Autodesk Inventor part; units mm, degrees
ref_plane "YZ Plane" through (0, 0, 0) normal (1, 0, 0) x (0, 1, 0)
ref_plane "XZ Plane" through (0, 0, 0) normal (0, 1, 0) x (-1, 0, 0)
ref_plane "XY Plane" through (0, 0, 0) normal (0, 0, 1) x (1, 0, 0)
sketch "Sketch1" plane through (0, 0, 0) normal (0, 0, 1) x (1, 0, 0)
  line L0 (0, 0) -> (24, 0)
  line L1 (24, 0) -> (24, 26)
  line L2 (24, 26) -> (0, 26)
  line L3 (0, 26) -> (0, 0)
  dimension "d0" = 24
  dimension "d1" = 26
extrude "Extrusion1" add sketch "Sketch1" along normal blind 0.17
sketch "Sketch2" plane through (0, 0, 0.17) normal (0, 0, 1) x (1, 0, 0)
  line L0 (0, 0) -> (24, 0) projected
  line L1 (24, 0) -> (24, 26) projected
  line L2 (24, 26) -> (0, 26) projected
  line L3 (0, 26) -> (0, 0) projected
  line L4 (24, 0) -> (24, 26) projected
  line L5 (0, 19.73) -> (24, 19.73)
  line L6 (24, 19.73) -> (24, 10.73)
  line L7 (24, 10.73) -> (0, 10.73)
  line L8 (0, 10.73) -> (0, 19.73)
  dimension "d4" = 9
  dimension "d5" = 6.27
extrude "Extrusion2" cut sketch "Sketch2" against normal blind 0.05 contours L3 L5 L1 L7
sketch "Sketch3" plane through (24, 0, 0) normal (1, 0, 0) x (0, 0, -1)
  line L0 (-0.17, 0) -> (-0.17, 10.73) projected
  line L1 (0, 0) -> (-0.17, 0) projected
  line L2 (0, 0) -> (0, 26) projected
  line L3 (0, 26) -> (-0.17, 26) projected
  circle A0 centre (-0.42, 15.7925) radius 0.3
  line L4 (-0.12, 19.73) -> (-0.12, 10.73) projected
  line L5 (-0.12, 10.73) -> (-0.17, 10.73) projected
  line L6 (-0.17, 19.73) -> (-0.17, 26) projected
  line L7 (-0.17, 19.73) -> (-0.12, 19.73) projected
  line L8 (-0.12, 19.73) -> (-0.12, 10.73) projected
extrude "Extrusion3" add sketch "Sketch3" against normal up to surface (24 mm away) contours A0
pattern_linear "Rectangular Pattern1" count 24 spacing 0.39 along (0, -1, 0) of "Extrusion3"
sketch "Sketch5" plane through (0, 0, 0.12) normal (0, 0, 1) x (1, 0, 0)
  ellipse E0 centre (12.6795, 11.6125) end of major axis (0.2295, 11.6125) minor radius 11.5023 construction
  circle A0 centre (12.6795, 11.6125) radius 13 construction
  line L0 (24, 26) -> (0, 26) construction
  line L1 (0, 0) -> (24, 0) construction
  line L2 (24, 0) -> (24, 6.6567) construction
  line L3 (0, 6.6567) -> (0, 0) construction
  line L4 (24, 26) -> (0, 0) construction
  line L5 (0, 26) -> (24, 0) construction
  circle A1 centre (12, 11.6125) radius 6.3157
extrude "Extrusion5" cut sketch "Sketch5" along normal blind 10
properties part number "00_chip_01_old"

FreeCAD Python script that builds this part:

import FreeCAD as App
import Part
import Sketcher

V = App.Vector
Q = App.Units.Quantity

doc = App.newDocument("Part")
body = doc.addObject("PartDesign::Body", "Body")
body.AllowCompound = True

# Sketch on XY plane
sketch1 = body.newObject("Sketcher::SketchObject", "Sketch")
sketch1.AttachmentSupport = (doc.getObject("XY_Plane"), [""])
sketch1.MapMode = "FlatFace"
sketch1.addGeometry([
    Part.LineSegment(V(0, 26, 0), V(0, 0, 0)),
    Part.LineSegment(V(0, 0, 0), V(24, 0, 0)),
    Part.LineSegment(V(24, 0, 0), V(24, 26, 0)),
    Part.LineSegment(V(24, 26, 0), V(0, 26, 0)),
], False)
sketch1.addConstraint([
    Sketcher.Constraint("Coincident", 0, 2, 1, 1),
    Sketcher.Constraint("Coincident", 1, 2, 2, 1),
    Sketcher.Constraint("Coincident", 2, 2, 3, 1),
    Sketcher.Constraint("Coincident", 3, 2, 0, 1),
    Sketcher.Constraint("Vertical", 0),
    Sketcher.Constraint("Horizontal", 1),
    Sketcher.Constraint("Vertical", 2),
    Sketcher.Constraint("Horizontal", 3),
    Sketcher.Constraint("Coincident", 0, 2, -1, 1),
    Sketcher.Constraint("DistanceX", 1, 1, 1, 2, Q("24 mm")),
    Sketcher.Constraint("DistanceY", 0, 2, 0, 1, Q("26 mm")),
])
pad1 = body.newObject("PartDesign::Pad", "Pad")
pad1.Profile = sketch1
pad1.Length = 0.17

# Sketch on XY plane
sketch2 = body.newObject("Sketcher::SketchObject", "Sketch001")
sketch2.AttachmentSupport = (doc.getObject("XY_Plane"), [""])
sketch2.MapMode = "FlatFace"
sketch2.AttachmentOffset = App.Placement(V(0, 0, 0.17), App.Rotation())
sketch2.addGeometry([
    Part.LineSegment(V(0, 20, 0), V(0, 11, 0)),
    Part.LineSegment(V(0, 11, 0), V(24, 11, 0)),
    Part.LineSegment(V(24, 11, 0), V(24, 20, 0)),
    Part.LineSegment(V(24, 20, 0), V(0, 20, 0)),
], False)
sketch2.addConstraint([
    Sketcher.Constraint("Coincident", 0, 2, 1, 1),
    Sketcher.Constraint("Coincident", 1, 2, 2, 1),
    Sketcher.Constraint("Coincident", 2, 2, 3, 1),
    Sketcher.Constraint("Coincident", 3, 2, 0, 1),
    Sketcher.Constraint("Vertical", 0),
    Sketcher.Constraint("Horizontal", 1),
    Sketcher.Constraint("Vertical", 2),
    Sketcher.Constraint("Horizontal", 3),
    Sketcher.Constraint("PointOnObject", 0, 2, -2),
    Sketcher.Constraint("DistanceY", 0, 2, 0, 1, Q("9 mm")),
    Sketcher.Constraint("DistanceX", 1, 1, 1, 2, Q("24 mm")),
    Sketcher.Constraint("DistanceY", -1, 1, 0, 2, Q("10.73 mm")),
])
pocket1 = body.newObject("PartDesign::Pocket", "Pocket")
pocket1.Profile = sketch2
pocket1.Length = 0.05

# Sketch on YZ plane
sketch3 = body.newObject("Sketcher::SketchObject", "Sketch002")
sketch3.AttachmentSupport = (doc.getObject("YZ_Plane"), [""])
sketch3.MapMode = "FlatFace"
sketch3.AttachmentOffset = App.Placement(V(0, 0, 24), App.Rotation())
sketch3.addGeometry(Part.Circle(V(15.79, 0.42, 0), V(0, 0, 1), 0.3), False)
sketch3.addConstraint([
    Sketcher.Constraint("Diameter", 0, Q("0.6 mm")),
    Sketcher.Constraint("DistanceY", -1, 1, 0, 3, Q("0.42 mm")),
    Sketcher.Constraint("DistanceX", -1, 1, 0, 3, Q("15.7925 mm")),
])
pad2 = body.newObject("PartDesign::Pad", "Pad001")
pad2.Profile = sketch3
pad2.Length = 24
pad2.Reversed = True
doc.recompute()

linearpattern = body.newObject("PartDesign::LinearPattern", "LinearPattern")
linearpattern.Originals = [pad2]
linearpattern.Direction = (doc.getObject("Y_Axis"), [""])
linearpattern.Mode = "offset"
linearpattern.Offset = 0.39
linearpattern.Occurrences = 24
linearpattern.Reversed = True
body.Tip = linearpattern

# Sketch on XY plane
sketch4 = body.newObject("Sketcher::SketchObject", "Sketch003")
sketch4.AttachmentSupport = (doc.getObject("XY_Plane"), [""])
sketch4.MapMode = "FlatFace"
sketch4.AttachmentOffset = App.Placement(V(0, 0, 0.12), App.Rotation())
sketch4.addGeometry(Part.Circle(V(12, 12, 0), V(0, 0, 1), 6), False)
sketch4.addConstraint([
    Sketcher.Constraint("DistanceX", -1, 1, 0, 3, Q("12 mm")),
    Sketcher.Constraint("Diameter", 0, Q("12.6314 mm")),
    Sketcher.Constraint("DistanceY", -1, 1, 0, 3, Q("11.6125 mm")),
])
pocket2 = body.newObject("PartDesign::Pocket", "Pocket001")
pocket2.Profile = sketch4
pocket2.Length = 10
pocket2.Reversed = True

doc.recompute()
